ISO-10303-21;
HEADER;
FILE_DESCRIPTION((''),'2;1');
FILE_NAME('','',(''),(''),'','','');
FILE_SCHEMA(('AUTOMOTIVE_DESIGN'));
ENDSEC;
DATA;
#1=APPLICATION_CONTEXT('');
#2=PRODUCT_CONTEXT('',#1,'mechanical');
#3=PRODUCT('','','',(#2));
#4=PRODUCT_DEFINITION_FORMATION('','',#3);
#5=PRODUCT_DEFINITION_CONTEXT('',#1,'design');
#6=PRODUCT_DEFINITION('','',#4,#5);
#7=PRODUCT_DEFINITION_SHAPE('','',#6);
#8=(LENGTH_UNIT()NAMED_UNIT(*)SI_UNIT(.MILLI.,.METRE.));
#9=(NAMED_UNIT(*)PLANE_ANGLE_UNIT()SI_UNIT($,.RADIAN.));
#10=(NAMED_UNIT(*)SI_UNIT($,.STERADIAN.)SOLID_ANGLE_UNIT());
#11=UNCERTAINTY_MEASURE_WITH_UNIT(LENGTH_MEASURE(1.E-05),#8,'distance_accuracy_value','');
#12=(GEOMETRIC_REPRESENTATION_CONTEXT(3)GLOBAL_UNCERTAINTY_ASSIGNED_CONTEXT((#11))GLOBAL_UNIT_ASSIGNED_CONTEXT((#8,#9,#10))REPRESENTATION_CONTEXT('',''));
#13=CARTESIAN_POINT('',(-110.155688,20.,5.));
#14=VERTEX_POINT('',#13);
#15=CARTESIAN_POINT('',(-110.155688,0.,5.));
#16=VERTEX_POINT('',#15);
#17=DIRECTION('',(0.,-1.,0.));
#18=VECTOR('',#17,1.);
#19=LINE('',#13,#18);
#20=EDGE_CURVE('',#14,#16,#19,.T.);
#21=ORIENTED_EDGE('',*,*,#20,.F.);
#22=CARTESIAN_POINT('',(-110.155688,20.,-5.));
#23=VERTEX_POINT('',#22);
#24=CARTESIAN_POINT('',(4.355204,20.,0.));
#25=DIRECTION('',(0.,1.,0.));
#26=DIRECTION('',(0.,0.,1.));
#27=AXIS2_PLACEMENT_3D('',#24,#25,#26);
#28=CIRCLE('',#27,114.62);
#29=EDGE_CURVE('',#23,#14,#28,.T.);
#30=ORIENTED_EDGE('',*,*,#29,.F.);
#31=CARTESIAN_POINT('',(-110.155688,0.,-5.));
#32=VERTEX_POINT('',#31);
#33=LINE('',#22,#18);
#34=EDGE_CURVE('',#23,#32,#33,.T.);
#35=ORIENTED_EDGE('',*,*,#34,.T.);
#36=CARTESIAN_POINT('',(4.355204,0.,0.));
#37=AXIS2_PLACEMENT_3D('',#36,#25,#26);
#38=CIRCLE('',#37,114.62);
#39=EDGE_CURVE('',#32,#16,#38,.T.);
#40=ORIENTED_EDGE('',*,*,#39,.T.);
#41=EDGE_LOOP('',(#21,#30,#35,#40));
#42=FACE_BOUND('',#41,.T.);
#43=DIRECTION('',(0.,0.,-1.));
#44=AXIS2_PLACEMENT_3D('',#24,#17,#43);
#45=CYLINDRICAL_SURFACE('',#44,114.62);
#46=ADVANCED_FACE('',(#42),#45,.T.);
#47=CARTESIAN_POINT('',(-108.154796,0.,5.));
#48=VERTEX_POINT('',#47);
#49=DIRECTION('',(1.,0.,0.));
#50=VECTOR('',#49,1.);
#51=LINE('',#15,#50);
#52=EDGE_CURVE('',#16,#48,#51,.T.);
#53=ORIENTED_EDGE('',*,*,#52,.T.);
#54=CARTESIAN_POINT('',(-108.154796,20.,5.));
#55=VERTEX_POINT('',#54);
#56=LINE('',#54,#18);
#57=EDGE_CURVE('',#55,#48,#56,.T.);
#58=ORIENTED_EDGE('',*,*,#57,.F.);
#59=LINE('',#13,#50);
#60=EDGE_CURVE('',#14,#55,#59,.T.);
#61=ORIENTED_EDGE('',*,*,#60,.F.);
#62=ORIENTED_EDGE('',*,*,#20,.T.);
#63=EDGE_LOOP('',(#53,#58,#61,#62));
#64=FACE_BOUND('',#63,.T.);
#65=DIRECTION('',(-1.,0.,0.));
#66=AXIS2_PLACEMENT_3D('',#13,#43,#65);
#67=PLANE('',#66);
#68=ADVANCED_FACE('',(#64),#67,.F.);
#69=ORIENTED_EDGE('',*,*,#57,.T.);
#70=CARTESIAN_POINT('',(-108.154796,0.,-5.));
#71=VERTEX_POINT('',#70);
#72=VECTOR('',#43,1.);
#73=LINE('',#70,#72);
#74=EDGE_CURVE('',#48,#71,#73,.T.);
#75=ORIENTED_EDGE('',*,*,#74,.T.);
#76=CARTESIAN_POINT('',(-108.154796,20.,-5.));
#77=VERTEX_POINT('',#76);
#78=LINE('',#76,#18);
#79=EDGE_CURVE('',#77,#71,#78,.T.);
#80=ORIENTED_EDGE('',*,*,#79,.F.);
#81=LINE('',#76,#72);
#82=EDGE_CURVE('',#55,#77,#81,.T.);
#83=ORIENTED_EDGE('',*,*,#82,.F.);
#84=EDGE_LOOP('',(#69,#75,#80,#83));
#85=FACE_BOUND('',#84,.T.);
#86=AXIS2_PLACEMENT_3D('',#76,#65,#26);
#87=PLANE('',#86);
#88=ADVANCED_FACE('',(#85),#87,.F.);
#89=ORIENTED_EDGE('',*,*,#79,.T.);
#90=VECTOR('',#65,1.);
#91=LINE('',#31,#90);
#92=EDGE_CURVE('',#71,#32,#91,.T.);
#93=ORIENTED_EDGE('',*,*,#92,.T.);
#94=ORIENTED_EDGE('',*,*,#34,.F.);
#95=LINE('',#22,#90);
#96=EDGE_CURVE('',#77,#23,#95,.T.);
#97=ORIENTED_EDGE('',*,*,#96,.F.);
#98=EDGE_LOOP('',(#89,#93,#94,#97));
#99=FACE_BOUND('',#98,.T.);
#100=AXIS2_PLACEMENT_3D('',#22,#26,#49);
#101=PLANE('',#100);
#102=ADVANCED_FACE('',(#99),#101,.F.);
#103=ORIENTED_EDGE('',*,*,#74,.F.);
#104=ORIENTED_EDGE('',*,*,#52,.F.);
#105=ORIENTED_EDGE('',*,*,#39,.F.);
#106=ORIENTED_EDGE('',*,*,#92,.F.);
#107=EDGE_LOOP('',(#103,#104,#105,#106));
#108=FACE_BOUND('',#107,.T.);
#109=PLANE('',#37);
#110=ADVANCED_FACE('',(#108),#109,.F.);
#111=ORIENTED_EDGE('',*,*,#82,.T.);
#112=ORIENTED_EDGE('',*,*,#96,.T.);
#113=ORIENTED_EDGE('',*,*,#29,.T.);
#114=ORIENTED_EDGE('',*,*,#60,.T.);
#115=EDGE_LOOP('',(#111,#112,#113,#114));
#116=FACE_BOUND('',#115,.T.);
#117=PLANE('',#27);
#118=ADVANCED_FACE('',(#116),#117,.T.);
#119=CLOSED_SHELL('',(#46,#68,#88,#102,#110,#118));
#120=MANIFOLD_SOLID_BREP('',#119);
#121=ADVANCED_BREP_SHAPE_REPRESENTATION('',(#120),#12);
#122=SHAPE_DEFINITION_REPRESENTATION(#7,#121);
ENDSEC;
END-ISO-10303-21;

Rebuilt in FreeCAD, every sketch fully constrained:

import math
import FreeCAD as App
import Part
import Sketcher

doc = App.newDocument("Part")
params = doc.addObject("Spreadsheet::Sheet", "Params")
for row, (alias, value) in enumerate([
    ("sketch1_height", "10 mm"),
    ("sketch1_radius", "114.620001 mm"),
    ("pad1_length", "20 mm"),
], start=1):
    params.set(f"A{row}", alias)
    params.set(f"B{row}", "=" + value)
    params.setAlias(f"B{row}", alias)

body = doc.addObject("PartDesign::Body", "Body")

# Sketch on XZ plane
sketch1 = body.newObject("Sketcher::SketchObject", "Sketch")
sketch1.AttachmentSupport = (doc.getObject("XZ_Plane"), [""])
sketch1.MapMode = "FlatFace"
sketch1.addGeometry([
    Part.LineSegment(App.Vector(-108.154796, -5, 0), App.Vector(-110.155688, -5, 0)),
    Part.ArcOfCircle(Part.Circle(App.Vector(4.355205, 0, 0), App.Vector(0, 0, 1), 114.620001), math.radians(177.499827), math.radians(182.500173)),
    Part.LineSegment(App.Vector(-110.155688, 5, 0), App.Vector(-108.154796, 5, 0)),
    Part.LineSegment(App.Vector(-108.154796, 5, 0), App.Vector(-108.154796, -5, 0)),
], False)
sketch1.addConstraint([
    Sketcher.Constraint("Coincident", 0, 2, 1, 2),
    Sketcher.Constraint("Coincident", 1, 1, 2, 1),
    Sketcher.Constraint("Coincident", 2, 2, 3, 1),
    Sketcher.Constraint("Coincident", 3, 2, 0, 1),
    Sketcher.Constraint("Horizontal", 0),
    Sketcher.Constraint("Horizontal", 2),
    Sketcher.Constraint("Vertical", 3),
    Sketcher.Constraint("Symmetric", 0, 2, 1, 1, -1),
    Sketcher.Constraint("DistanceY", 3, 2, 3, 1, 10.0),
    Sketcher.Constraint("Radius", 1, 114.620001),
    Sketcher.Constraint("DistanceX", 2, 2, 1, 3, 112.510001),
    Sketcher.Constraint("DistanceX", -1, 1, 1, 3, 4.355205),
])
sketch1.setExpression("Constraints[8]", "Params.sketch1_height")
sketch1.setExpression("Constraints[9]", "Params.sketch1_radius")
pad1 = body.newObject("PartDesign::Pad", "Pad")
pad1.Profile = sketch1
pad1.setExpression("Length", "Params.pad1_length")
pad1.Reversed = True

doc.recompute()
